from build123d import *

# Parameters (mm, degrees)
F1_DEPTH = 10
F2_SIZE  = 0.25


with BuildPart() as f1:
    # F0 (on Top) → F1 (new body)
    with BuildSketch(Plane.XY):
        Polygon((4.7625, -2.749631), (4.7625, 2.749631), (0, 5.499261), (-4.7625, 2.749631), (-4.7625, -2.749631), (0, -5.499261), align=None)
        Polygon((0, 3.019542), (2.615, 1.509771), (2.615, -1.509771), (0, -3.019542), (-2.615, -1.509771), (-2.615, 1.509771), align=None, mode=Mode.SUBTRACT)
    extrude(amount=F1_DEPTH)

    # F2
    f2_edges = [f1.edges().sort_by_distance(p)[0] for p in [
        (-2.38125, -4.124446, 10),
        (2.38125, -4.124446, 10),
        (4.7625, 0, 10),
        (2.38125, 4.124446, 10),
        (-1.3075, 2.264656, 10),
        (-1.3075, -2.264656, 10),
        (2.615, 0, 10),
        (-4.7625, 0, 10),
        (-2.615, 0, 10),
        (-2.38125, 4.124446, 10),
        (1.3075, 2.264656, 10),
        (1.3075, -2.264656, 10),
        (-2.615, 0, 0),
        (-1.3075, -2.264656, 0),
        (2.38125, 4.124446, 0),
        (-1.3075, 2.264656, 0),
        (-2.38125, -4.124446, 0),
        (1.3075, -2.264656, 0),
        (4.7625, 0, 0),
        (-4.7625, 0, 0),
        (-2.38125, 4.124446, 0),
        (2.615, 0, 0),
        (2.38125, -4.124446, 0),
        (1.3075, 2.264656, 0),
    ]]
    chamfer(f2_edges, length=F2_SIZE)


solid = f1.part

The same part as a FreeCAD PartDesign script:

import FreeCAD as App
import Part
import Sketcher
from FreeCAD import Vector
Q = App.Units.Quantity


def edges_at(feature, points):
    """Names of the edges that pass closest to the given points."""
    edges = feature.Shape.Edges
    near = lambda p: min(range(len(edges)), key=lambda i: edges[i].distToShape(Part.Vertex(*p))[0])
    return sorted({f"Edge{near(p) + 1}" for p in points})

doc = App.newDocument("Part")
body = doc.addObject("PartDesign::Body", "Body")

sketch1 = body.newObject("Sketcher::SketchObject", "Sketch")
sketch1.AttachmentSupport = (doc.getObject("XY_Plane"), [""])
sketch1.MapMode = "FlatFace"
sketch1.addGeometry([
    Part.LineSegment(Vector(4.8, -2.7, 0), Vector(4.8, 2.7, 0)),
    Part.LineSegment(Vector(4.8, 2.7, 0), Vector(0, 5.5, 0)),
    Part.LineSegment(Vector(0, 5.5, 0), Vector(-4.8, 2.7, 0)),
    Part.LineSegment(Vector(-4.8, 2.7, 0), Vector(-4.8, -2.7, 0)),
    Part.LineSegment(Vector(-4.8, -2.7, 0), Vector(0, -5.5, 0)),
    Part.LineSegment(Vector(0, -5.5, 0), Vector(4.8, -2.7, 0)),
    Part.LineSegment(Vector(-2.6, 1.5, 0), Vector(0, 3, 0)),
    Part.LineSegment(Vector(0, 3, 0), Vector(2.6, 1.5, 0)),
    Part.LineSegment(Vector(2.6, 1.5, 0), Vector(2.6, -1.5, 0)),
    Part.LineSegment(Vector(2.6, -1.5, 0), Vector(0, -3, 0)),
    Part.LineSegment(Vector(0, -3, 0), Vector(-2.6, -1.5, 0)),
    Part.LineSegment(Vector(-2.6, -1.5, 0), Vector(-2.6, 1.5, 0)),
], False)
sketch1.addConstraint([
    Sketcher.Constraint("Coincident", 0, 2, 1, 1),
    Sketcher.Constraint("Coincident", 1, 2, 2, 1),
    Sketcher.Constraint("Coincident", 2, 2, 3, 1),
    Sketcher.Constraint("Coincident", 3, 2, 4, 1),
    Sketcher.Constraint("Coincident", 4, 2, 5, 1),
    Sketcher.Constraint("Coincident", 5, 2, 0, 1),
    Sketcher.Constraint("Coincident", 6, 2, 7, 1),
    Sketcher.Constraint("Coincident", 7, 2, 8, 1),
    Sketcher.Constraint("Coincident", 8, 2, 9, 1),
    Sketcher.Constraint("Coincident", 9, 2, 10, 1),
    Sketcher.Constraint("Coincident", 10, 2, 11, 1),
    Sketcher.Constraint("Coincident", 11, 2, 6, 1),
    Sketcher.Constraint("Vertical", 0),
    Sketcher.Constraint("Vertical", 3),
    Sketcher.Constraint("Vertical", 8),
    Sketcher.Constraint("Vertical", 11),
    Sketcher.Constraint("Symmetric", 0, 2, 3, 2, -1, 1),
    Sketcher.Constraint("Symmetric", 1, 2, 4, 2, -1, 1),
    Sketcher.Constraint("Symmetric", 6, 2, 9, 2, -1, 1),
    Sketcher.Constraint("Symmetric", 7, 2, 10, 2, -1, 1),
    Sketcher.Constraint("PointOnObject", 1, 2, -2),
    Sketcher.Constraint("PointOnObject", 6, 2, -2),
    Sketcher.Constraint("Parallel", 2, 5),
    Sketcher.Constraint("Parallel", 5, 6),
    Sketcher.Constraint("Parallel", 4, 7),
    Sketcher.Constraint("Parallel", 6, 9),
    Sketcher.Constraint("Horizontal", 0, 2, 2, 2),
    Sketcher.Constraint("Angle", 1, Q("150.000006 deg")),
    Sketcher.Constraint("DistanceX", 10, 2, 8, 2, 5.23),
    Sketcher.Constraint("DistanceX", 2, 2, 0, 2, 9.525),
    Sketcher.Constraint("DistanceY", 8, 2, 8, 1, 3.019542),
    Sketcher.Constraint("DistanceY", 5, 2, 7, 2, 4.259402),
])
pad1 = body.newObject("PartDesign::Pad", "Pad")
pad1.Profile = sketch1
pad1.Length = 10
doc.recompute()

chamfer = body.newObject("PartDesign::Chamfer", "Chamfer")
chamfer.Base = (pad1, edges_at(pad1, [
    (-2.381, -4.124, 10),
    (2.381, -4.124, 10),
    (4.763, 0, 10),
    (2.381, 4.124, 10),
    (-1.308, 2.265, 10),
    (-1.308, -2.265, 10),
    (2.615, 0, 10),
    (-4.763, 0, 10),
    (-2.615, 0, 10),
    (-2.381, 4.124, 10),
    (1.308, 2.265, 10),
    (1.308, -2.265, 10),
    (-2.615, 0, 0),
    (-1.308, -2.265, 0),
    (2.381, 4.124, 0),
    (-1.308, 2.265, 0),
    (-2.381, -4.124, 0),
    (1.308, -2.265, 0),
    (4.763, 0, 0),
    (-4.763, 0, 0),
    (-2.381, 4.124, 0),
    (2.615, 0, 0),
    (2.381, -4.124, 0),
    (1.308, 2.265, 0),
]))
chamfer.Size = 0.25

doc.recompute()
